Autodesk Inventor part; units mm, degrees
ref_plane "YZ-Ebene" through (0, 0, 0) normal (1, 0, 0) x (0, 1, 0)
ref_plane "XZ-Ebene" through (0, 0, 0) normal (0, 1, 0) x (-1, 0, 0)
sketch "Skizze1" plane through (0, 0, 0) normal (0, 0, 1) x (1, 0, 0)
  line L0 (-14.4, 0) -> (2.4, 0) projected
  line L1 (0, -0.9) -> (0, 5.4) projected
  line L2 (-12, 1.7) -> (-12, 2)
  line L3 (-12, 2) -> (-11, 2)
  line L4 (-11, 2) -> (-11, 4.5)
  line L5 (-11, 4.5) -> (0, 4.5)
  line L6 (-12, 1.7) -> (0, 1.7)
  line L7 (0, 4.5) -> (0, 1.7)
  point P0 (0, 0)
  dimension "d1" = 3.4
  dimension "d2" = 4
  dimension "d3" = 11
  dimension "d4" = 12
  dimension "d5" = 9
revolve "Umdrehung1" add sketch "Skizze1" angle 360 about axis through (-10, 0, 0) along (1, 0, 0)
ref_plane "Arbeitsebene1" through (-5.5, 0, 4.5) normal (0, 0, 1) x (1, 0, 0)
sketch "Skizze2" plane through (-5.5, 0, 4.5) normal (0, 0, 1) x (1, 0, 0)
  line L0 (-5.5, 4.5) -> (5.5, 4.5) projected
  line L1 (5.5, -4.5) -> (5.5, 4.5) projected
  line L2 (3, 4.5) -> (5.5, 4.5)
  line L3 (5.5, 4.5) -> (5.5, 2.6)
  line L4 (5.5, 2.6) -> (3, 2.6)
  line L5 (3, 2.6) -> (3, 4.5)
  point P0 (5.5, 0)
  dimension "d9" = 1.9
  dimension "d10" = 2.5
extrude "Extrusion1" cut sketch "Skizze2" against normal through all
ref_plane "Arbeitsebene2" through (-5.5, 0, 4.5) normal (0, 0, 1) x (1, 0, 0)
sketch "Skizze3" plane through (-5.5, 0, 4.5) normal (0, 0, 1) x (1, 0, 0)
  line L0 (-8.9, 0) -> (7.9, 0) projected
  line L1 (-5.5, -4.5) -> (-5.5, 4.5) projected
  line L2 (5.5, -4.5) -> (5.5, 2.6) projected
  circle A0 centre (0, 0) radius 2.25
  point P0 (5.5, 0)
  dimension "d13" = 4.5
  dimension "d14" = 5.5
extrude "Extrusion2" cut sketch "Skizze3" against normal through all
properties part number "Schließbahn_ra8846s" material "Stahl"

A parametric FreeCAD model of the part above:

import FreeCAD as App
import Part
import Sketcher
Q = App.Units.Quantity

doc = App.newDocument("Part")
body = doc.addObject("PartDesign::Body", "Body")

sketch1 = body.newObject("Sketcher::SketchObject", "Sketch")
sketch1.AttachmentSupport = (doc.getObject("XY_Plane"), [""])
sketch1.MapMode = "FlatFace"
sketch1.addGeometry([
    Part.LineSegment(App.Vector(-12, 1.7, 0), App.Vector(0, 1.7, 0)),
    Part.LineSegment(App.Vector(0, 1.7, 0), App.Vector(0, 4.5, 0)),
    Part.LineSegment(App.Vector(0, 4.5, 0), App.Vector(-11, 4.5, 0)),
    Part.LineSegment(App.Vector(-11, 4.5, 0), App.Vector(-11, 2, 0)),
    Part.LineSegment(App.Vector(-11, 2, 0), App.Vector(-12, 2, 0)),
    Part.LineSegment(App.Vector(-12, 2, 0), App.Vector(-12, 1.7, 0)),
], False)
sketch1.addConstraint([
    Sketcher.Constraint("Coincident", 0, 2, 1, 1),
    Sketcher.Constraint("Coincident", 1, 2, 2, 1),
    Sketcher.Constraint("Coincident", 2, 2, 3, 1),
    Sketcher.Constraint("Coincident", 3, 2, 4, 1),
    Sketcher.Constraint("Coincident", 4, 2, 5, 1),
    Sketcher.Constraint("Coincident", 5, 2, 0, 1),
    Sketcher.Constraint("Horizontal", 0),
    Sketcher.Constraint("Vertical", 1),
    Sketcher.Constraint("Horizontal", 2),
    Sketcher.Constraint("Vertical", 3),
    Sketcher.Constraint("Horizontal", 4),
    Sketcher.Constraint("Vertical", 5),
    Sketcher.Constraint("PointOnObject", 0, 2, -2),
    Sketcher.Constraint("DistanceX", 0, 1, 0, 2, Q("12 mm")),
    Sketcher.Constraint("DistanceX", 2, 2, 2, 1, Q("11 mm")),
    Sketcher.Constraint("DistanceY", 1, 1, 1, 2, Q("2.8 mm")),
    Sketcher.Constraint("DistanceY", 3, 2, 3, 1, Q("2.5 mm")),
    Sketcher.Constraint("DistanceY", -1, 1, 3, 2, Q("2 mm")),
])
revolution = body.newObject("PartDesign::Revolution", "Revolution")
revolution.Profile = sketch1
revolution.ReferenceAxis = (sketch1, ["H_Axis"])
revolution.Angle = 360

sketch2 = body.newObject("Sketcher::SketchObject", "Sketch001")
sketch2.AttachmentSupport = (doc.getObject("XY_Plane"), [""])
sketch2.MapMode = "FlatFace"
sketch2.AttachmentOffset = App.Placement(App.Vector(0, 0, 4.5), App.Rotation())
sketch2.addGeometry([
    Part.LineSegment(App.Vector(0, 4.5, 0), App.Vector(-2.5, 4.5, 0)),
    Part.LineSegment(App.Vector(-2.5, 4.5, 0), App.Vector(-2.5, 2.6, 0)),
    Part.LineSegment(App.Vector(-2.5, 2.6, 0), App.Vector(0, 2.6, 0)),
    Part.LineSegment(App.Vector(0, 2.6, 0), App.Vector(0, 4.5, 0)),
], False)
sketch2.addConstraint([
    Sketcher.Constraint("Coincident", 0, 2, 1, 1),
    Sketcher.Constraint("Coincident", 1, 2, 2, 1),
    Sketcher.Constraint("Coincident", 2, 2, 3, 1),
    Sketcher.Constraint("Coincident", 3, 2, 0, 1),
    Sketcher.Constraint("Horizontal", 0),
    Sketcher.Constraint("Vertical", 1),
    Sketcher.Constraint("Horizontal", 2),
    Sketcher.Constraint("Vertical", 3),
    Sketcher.Constraint("PointOnObject", 2, 2, -2),
    Sketcher.Constraint("DistanceX", 0, 2, 0, 1, Q("2.5 mm")),
    Sketcher.Constraint("DistanceY", 1, 2, 1, 1, Q("1.9 mm")),
    Sketcher.Constraint("DistanceY", -1, 1, 0, 2, Q("4.5 mm")),
])
pocket1 = body.newObject("PartDesign::Pocket", "Pocket")
pocket1.Profile = sketch2
pocket1.Type = "ThroughAll"

sketch3 = body.newObject("Sketcher::SketchObject", "Sketch002")
sketch3.AttachmentSupport = (doc.getObject("XY_Plane"), [""])
sketch3.MapMode = "FlatFace"
sketch3.AttachmentOffset = App.Placement(App.Vector(0, 0, 4.5), App.Rotation())
sketch3.addGeometry(Part.Circle(App.Vector(-5.5, 0, 0), App.Vector(0, 0, 1), 2.25), False)
sketch3.addConstraint([
    Sketcher.Constraint("PointOnObject", 0, 3, -1),
    Sketcher.Constraint("Diameter", 0, Q("4.5 mm")),
    Sketcher.Constraint("DistanceX", 0, 3, -1, 1, Q("5.5 mm")),
])
pocket2 = body.newObject("PartDesign::Pocket", "Pocket001")
pocket2.Profile = sketch3
pocket2.Type = "ThroughAll"

doc.recompute()
